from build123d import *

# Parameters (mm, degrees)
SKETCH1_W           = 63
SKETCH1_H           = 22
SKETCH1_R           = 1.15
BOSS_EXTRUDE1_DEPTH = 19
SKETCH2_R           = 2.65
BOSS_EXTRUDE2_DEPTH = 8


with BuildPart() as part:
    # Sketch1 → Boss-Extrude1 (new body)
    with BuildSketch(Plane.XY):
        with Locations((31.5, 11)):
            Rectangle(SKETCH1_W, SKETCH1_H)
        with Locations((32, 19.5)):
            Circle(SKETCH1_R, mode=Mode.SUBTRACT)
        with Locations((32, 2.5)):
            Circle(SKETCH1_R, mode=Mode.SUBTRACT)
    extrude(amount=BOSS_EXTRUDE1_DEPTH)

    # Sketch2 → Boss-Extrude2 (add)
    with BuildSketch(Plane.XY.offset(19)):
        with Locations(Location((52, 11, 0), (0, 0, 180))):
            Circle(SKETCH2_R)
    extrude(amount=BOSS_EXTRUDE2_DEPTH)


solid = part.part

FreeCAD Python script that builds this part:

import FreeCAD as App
import Part
import Sketcher
Q = App.Units.Quantity

doc = App.newDocument("Part")
body = doc.addObject("PartDesign::Body", "Body")

sketch1 = body.newObject("Sketcher::SketchObject", "Sketch")
sketch1.AttachmentSupport = (doc.getObject("XY_Plane"), [""])
sketch1.MapMode = "FlatFace"
sketch1.addGeometry(Part.LineSegment(App.Vector(0, 22, 0), App.Vector(0, 0, 0)), False)
sketch1.addGeometry(Part.LineSegment(App.Vector(0, 0, 0), App.Vector(63, 0, 0)), False)
sketch1.addGeometry(Part.LineSegment(App.Vector(63, 0, 0), App.Vector(63, 22, 0)), False)
sketch1.addGeometry(Part.LineSegment(App.Vector(63, 22, 0), App.Vector(0, 22, 0)), False)
sketch1.addGeometry(Part.Circle(App.Vector(32, 2.5, 0), App.Vector(0, 0, 1), 1.15), False)
sketch1.addGeometry(Part.Circle(App.Vector(32, 19.5, 0), App.Vector(0, 0, 1), 1.15), False)
sketch1.addConstraint(Sketcher.Constraint("Coincident", 0, 2, 1, 1))
sketch1.addConstraint(Sketcher.Constraint("Coincident", 1, 2, 2, 1))
sketch1.addConstraint(Sketcher.Constraint("Coincident", 2, 2, 3, 1))
sketch1.addConstraint(Sketcher.Constraint("Coincident", 3, 2, 0, 1))
sketch1.addConstraint(Sketcher.Constraint("Vertical", 0))
sketch1.addConstraint(Sketcher.Constraint("Horizontal", 1))
sketch1.addConstraint(Sketcher.Constraint("Vertical", 2))
sketch1.addConstraint(Sketcher.Constraint("Horizontal", 3))
sketch1.addConstraint(Sketcher.Constraint("Coincident", 0, 2, -1, 1))
sketch1.addConstraint(Sketcher.Constraint("Equal", 4, 5))
sketch1.addConstraint(Sketcher.Constraint("Vertical", 4, 3, 5, 3))
sketch1.addConstraint(Sketcher.Constraint("Diameter", 4, Q("2.3 mm")))
sketch1.addConstraint(Sketcher.Constraint("DistanceX", 1, 1, 1, 2, Q("63 mm")))
sketch1.addConstraint(Sketcher.Constraint("DistanceY", 0, 2, 0, 1, Q("22 mm")))
sketch1.addConstraint(Sketcher.Constraint("DistanceX", -1, 1, 4, 3, Q("32 mm")))
sketch1.addConstraint(Sketcher.Constraint("DistanceY", 4, 3, 5, 3, Q("17 mm")))
sketch1.addConstraint(Sketcher.Constraint("DistanceY", -1, 1, 4, 3, Q("2.5 mm")))
pad1 = body.newObject("PartDesign::Pad", "Pad")
pad1.Profile = sketch1
pad1.Length = 19

sketch2 = body.newObject("Sketcher::SketchObject", "Sketch001")
sketch2.AttachmentSupport = (doc.getObject("XY_Plane"), [""])
sketch2.MapMode = "FlatFace"
sketch2.AttachmentOffset = App.Placement(App.Vector(0, 0, 19), App.Rotation())
sketch2.addGeometry(Part.Circle(App.Vector(52, 11, 0), App.Vector(0, 0, 1), 2.65), False)
sketch2.addConstraint(Sketcher.Constraint("Diameter", 0, Q("5.3 mm")))
sketch2.addConstraint(Sketcher.Constraint("DistanceX", -1, 1, 0, 3, Q("52 mm")))
sketch2.addConstraint(Sketcher.Constraint("DistanceY", -1, 1, 0, 3, Q("11 mm")))
pad2 = body.newObject("PartDesign::Pad", "Pad001")
pad2.Profile = sketch2
pad2.Length = 8

doc.recompute()
